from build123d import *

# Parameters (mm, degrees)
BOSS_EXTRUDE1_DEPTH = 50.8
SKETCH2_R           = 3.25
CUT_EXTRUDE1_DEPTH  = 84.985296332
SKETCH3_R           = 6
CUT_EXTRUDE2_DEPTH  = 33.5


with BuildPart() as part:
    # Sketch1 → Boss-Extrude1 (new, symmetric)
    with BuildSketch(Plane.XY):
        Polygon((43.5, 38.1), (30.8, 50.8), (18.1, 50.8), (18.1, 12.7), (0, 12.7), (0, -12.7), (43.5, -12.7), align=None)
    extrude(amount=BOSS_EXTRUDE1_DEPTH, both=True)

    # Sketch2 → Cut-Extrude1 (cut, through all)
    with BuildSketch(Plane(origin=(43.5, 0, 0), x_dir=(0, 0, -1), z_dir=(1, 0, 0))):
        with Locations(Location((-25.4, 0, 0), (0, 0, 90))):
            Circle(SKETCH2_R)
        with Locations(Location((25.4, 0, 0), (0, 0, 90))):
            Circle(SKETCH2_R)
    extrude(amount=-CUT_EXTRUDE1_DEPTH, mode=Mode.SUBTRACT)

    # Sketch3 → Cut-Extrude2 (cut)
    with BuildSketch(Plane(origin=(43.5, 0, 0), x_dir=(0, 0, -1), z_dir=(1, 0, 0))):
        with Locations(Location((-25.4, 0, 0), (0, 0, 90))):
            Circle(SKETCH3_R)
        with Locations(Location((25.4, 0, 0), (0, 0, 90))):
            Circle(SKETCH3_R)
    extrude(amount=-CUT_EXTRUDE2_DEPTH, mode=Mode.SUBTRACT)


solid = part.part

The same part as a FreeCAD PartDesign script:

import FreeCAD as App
import Part
import Sketcher
Q = App.Units.Quantity

doc = App.newDocument("Part")
params = doc.addObject("Spreadsheet::Sheet", "Params")
for row, (alias, value) in enumerate([
    ("sketch1_width", "12.7 mm"),
    ("sketch1_width2", "18.1 mm"),
    ("sketch1_width3", "43.5 mm"),
    ("sketch1_height", "38.1 mm"),
    ("sketch1_height2", "25.4 mm"),
    ("pad1_length", "101.6 mm"),
    ("sketch2_diameter", "6.5 mm"),
    ("sketch3_diameter", "12 mm"),
    ("pocket2_length", "33.5 mm"),
], start=1):
    params.set(f"A{row}", alias)
    params.set(f"B{row}", "=" + value)
    params.setAlias(f"B{row}", alias)

body = doc.addObject("PartDesign::Body", "Body")

sketch1 = body.newObject("Sketcher::SketchObject", "Sketch")
sketch1.AttachmentSupport = (doc.getObject("XY_Plane"), [""])
sketch1.MapMode = "FlatFace"
sketch1.addGeometry(Part.LineSegment(App.Vector(44, 38, 0), App.Vector(31, 51, 0)), False)
sketch1.addGeometry(Part.LineSegment(App.Vector(31, 51, 0), App.Vector(18, 51, 0)), False)
sketch1.addGeometry(Part.LineSegment(App.Vector(18, 51, 0), App.Vector(18, 13, 0)), False)
sketch1.addGeometry(Part.LineSegment(App.Vector(18, 13, 0), App.Vector(0, 13, 0)), False)
sketch1.addGeometry(Part.LineSegment(App.Vector(0, 13, 0), App.Vector(0, -13, 0)), False)
sketch1.addGeometry(Part.LineSegment(App.Vector(0, -13, 0), App.Vector(44, -13, 0)), False)
sketch1.addGeometry(Part.LineSegment(App.Vector(44, -13, 0), App.Vector(44, 38, 0)), False)
sketch1.addConstraint(Sketcher.Constraint("Coincident", 0, 2, 1, 1))
sketch1.addConstraint(Sketcher.Constraint("Coincident", 1, 2, 2, 1))
sketch1.addConstraint(Sketcher.Constraint("Coincident", 2, 2, 3, 1))
sketch1.addConstraint(Sketcher.Constraint("Coincident", 3, 2, 4, 1))
sketch1.addConstraint(Sketcher.Constraint("Coincident", 4, 2, 5, 1))
sketch1.addConstraint(Sketcher.Constraint("Coincident", 5, 2, 6, 1))
sketch1.addConstraint(Sketcher.Constraint("Coincident", 6, 2, 0, 1))
sketch1.addConstraint(Sketcher.Constraint("Horizontal", 1))
sketch1.addConstraint(Sketcher.Constraint("Vertical", 2))
sketch1.addConstraint(Sketcher.Constraint("Horizontal", 3))
sketch1.addConstraint(Sketcher.Constraint("Vertical", 4))
sketch1.addConstraint(Sketcher.Constraint("Horizontal", 5))
sketch1.addConstraint(Sketcher.Constraint("Vertical", 6))
sketch1.addConstraint(Sketcher.Constraint("Symmetric", 3, 2, 4, 2, -1, 1))
sketch1.addConstraint(Sketcher.Constraint("Angle", 0, Q("135 deg")))
sketch1.addConstraint(Sketcher.Constraint("DistanceX", 1, 2, 1, 1, Q("12.7 mm")))
sketch1.addConstraint(Sketcher.Constraint("DistanceX", 3, 2, 3, 1, Q("18.1 mm")))
sketch1.addConstraint(Sketcher.Constraint("DistanceX", 5, 1, 5, 2, Q("43.5 mm")))
sketch1.addConstraint(Sketcher.Constraint("DistanceY", 2, 2, 2, 1, Q("38.1 mm")))
sketch1.addConstraint(Sketcher.Constraint("DistanceY", 4, 2, 4, 1, Q("25.4 mm")))
sketch1.setExpression("Constraints[15]", "Params.sketch1_width")
sketch1.setExpression("Constraints[16]", "Params.sketch1_width2")
sketch1.setExpression("Constraints[17]", "Params.sketch1_width3")
sketch1.setExpression("Constraints[18]", "Params.sketch1_height")
sketch1.setExpression("Constraints[19]", "Params.sketch1_height2")
pad1 = body.newObject("PartDesign::Pad", "Pad")
pad1.Profile = sketch1
pad1.setExpression("Length", "Params.pad1_length")
pad1.Midplane = True

sketch2 = body.newObject("Sketcher::SketchObject", "Sketch001")
sketch2.AttachmentSupport = (doc.getObject("YZ_Plane"), [""])
sketch2.MapMode = "FlatFace"
sketch2.AttachmentOffset = App.Placement(App.Vector(0, 0, 43.5), App.Rotation())
sketch2.addGeometry(Part.Circle(App.Vector(0, 25.4, 0), App.Vector(0, 0, 1), 3.2), False)
sketch2.addGeometry(Part.Circle(App.Vector(0, -25.4, 0), App.Vector(0, 0, 1), 3.2), False)
sketch2.addConstraint(Sketcher.Constraint("Equal", 0, 1))
sketch2.addConstraint(Sketcher.Constraint("Symmetric", 0, 3, 1, 3, -1, 1))
sketch2.addConstraint(Sketcher.Constraint("PointOnObject", 0, 3, -2))
sketch2.addConstraint(Sketcher.Constraint("Diameter", 0, Q("6.5 mm")))
sketch2.addConstraint(Sketcher.Constraint("DistanceY", -1, 1, 0, 3, Q("25.4 mm")))
sketch2.setExpression("Constraints[3]", "Params.sketch2_diameter")
pocket1 = body.newObject("PartDesign::Pocket", "Pocket")
pocket1.Profile = sketch2
pocket1.Type = "ThroughAll"

sketch3 = body.newObject("Sketcher::SketchObject", "Sketch002")
sketch3.AttachmentSupport = (doc.getObject("YZ_Plane"), [""])
sketch3.MapMode = "FlatFace"
sketch3.AttachmentOffset = App.Placement(App.Vector(0, 0, 43.5), App.Rotation())
sketch3.addGeometry(Part.Circle(App.Vector(0, 25, 0), App.Vector(0, 0, 1), 6), False)
sketch3.addGeometry(Part.Circle(App.Vector(0, -25, 0), App.Vector(0, 0, 1), 6), False)
sketch3.addConstraint(Sketcher.Constraint("Equal", 0, 1))
sketch3.addConstraint(Sketcher.Constraint("Symmetric", 0, 3, 1, 3, -1, 1))
sketch3.addConstraint(Sketcher.Constraint("PointOnObject", 0, 3, -2))
sketch3.addConstraint(Sketcher.Constraint("Diameter", 0, Q("12 mm")))
sketch3.addConstraint(Sketcher.Constraint("DistanceY", -1, 1, 0, 3, Q("25.4 mm")))
sketch3.setExpression("Constraints[3]", "Params.sketch3_diameter")
pocket2 = body.newObject("PartDesign::Pocket", "Pocket001")
pocket2.Profile = sketch3
pocket2.setExpression("Length", "Params.pocket2_length")

doc.recompute()
